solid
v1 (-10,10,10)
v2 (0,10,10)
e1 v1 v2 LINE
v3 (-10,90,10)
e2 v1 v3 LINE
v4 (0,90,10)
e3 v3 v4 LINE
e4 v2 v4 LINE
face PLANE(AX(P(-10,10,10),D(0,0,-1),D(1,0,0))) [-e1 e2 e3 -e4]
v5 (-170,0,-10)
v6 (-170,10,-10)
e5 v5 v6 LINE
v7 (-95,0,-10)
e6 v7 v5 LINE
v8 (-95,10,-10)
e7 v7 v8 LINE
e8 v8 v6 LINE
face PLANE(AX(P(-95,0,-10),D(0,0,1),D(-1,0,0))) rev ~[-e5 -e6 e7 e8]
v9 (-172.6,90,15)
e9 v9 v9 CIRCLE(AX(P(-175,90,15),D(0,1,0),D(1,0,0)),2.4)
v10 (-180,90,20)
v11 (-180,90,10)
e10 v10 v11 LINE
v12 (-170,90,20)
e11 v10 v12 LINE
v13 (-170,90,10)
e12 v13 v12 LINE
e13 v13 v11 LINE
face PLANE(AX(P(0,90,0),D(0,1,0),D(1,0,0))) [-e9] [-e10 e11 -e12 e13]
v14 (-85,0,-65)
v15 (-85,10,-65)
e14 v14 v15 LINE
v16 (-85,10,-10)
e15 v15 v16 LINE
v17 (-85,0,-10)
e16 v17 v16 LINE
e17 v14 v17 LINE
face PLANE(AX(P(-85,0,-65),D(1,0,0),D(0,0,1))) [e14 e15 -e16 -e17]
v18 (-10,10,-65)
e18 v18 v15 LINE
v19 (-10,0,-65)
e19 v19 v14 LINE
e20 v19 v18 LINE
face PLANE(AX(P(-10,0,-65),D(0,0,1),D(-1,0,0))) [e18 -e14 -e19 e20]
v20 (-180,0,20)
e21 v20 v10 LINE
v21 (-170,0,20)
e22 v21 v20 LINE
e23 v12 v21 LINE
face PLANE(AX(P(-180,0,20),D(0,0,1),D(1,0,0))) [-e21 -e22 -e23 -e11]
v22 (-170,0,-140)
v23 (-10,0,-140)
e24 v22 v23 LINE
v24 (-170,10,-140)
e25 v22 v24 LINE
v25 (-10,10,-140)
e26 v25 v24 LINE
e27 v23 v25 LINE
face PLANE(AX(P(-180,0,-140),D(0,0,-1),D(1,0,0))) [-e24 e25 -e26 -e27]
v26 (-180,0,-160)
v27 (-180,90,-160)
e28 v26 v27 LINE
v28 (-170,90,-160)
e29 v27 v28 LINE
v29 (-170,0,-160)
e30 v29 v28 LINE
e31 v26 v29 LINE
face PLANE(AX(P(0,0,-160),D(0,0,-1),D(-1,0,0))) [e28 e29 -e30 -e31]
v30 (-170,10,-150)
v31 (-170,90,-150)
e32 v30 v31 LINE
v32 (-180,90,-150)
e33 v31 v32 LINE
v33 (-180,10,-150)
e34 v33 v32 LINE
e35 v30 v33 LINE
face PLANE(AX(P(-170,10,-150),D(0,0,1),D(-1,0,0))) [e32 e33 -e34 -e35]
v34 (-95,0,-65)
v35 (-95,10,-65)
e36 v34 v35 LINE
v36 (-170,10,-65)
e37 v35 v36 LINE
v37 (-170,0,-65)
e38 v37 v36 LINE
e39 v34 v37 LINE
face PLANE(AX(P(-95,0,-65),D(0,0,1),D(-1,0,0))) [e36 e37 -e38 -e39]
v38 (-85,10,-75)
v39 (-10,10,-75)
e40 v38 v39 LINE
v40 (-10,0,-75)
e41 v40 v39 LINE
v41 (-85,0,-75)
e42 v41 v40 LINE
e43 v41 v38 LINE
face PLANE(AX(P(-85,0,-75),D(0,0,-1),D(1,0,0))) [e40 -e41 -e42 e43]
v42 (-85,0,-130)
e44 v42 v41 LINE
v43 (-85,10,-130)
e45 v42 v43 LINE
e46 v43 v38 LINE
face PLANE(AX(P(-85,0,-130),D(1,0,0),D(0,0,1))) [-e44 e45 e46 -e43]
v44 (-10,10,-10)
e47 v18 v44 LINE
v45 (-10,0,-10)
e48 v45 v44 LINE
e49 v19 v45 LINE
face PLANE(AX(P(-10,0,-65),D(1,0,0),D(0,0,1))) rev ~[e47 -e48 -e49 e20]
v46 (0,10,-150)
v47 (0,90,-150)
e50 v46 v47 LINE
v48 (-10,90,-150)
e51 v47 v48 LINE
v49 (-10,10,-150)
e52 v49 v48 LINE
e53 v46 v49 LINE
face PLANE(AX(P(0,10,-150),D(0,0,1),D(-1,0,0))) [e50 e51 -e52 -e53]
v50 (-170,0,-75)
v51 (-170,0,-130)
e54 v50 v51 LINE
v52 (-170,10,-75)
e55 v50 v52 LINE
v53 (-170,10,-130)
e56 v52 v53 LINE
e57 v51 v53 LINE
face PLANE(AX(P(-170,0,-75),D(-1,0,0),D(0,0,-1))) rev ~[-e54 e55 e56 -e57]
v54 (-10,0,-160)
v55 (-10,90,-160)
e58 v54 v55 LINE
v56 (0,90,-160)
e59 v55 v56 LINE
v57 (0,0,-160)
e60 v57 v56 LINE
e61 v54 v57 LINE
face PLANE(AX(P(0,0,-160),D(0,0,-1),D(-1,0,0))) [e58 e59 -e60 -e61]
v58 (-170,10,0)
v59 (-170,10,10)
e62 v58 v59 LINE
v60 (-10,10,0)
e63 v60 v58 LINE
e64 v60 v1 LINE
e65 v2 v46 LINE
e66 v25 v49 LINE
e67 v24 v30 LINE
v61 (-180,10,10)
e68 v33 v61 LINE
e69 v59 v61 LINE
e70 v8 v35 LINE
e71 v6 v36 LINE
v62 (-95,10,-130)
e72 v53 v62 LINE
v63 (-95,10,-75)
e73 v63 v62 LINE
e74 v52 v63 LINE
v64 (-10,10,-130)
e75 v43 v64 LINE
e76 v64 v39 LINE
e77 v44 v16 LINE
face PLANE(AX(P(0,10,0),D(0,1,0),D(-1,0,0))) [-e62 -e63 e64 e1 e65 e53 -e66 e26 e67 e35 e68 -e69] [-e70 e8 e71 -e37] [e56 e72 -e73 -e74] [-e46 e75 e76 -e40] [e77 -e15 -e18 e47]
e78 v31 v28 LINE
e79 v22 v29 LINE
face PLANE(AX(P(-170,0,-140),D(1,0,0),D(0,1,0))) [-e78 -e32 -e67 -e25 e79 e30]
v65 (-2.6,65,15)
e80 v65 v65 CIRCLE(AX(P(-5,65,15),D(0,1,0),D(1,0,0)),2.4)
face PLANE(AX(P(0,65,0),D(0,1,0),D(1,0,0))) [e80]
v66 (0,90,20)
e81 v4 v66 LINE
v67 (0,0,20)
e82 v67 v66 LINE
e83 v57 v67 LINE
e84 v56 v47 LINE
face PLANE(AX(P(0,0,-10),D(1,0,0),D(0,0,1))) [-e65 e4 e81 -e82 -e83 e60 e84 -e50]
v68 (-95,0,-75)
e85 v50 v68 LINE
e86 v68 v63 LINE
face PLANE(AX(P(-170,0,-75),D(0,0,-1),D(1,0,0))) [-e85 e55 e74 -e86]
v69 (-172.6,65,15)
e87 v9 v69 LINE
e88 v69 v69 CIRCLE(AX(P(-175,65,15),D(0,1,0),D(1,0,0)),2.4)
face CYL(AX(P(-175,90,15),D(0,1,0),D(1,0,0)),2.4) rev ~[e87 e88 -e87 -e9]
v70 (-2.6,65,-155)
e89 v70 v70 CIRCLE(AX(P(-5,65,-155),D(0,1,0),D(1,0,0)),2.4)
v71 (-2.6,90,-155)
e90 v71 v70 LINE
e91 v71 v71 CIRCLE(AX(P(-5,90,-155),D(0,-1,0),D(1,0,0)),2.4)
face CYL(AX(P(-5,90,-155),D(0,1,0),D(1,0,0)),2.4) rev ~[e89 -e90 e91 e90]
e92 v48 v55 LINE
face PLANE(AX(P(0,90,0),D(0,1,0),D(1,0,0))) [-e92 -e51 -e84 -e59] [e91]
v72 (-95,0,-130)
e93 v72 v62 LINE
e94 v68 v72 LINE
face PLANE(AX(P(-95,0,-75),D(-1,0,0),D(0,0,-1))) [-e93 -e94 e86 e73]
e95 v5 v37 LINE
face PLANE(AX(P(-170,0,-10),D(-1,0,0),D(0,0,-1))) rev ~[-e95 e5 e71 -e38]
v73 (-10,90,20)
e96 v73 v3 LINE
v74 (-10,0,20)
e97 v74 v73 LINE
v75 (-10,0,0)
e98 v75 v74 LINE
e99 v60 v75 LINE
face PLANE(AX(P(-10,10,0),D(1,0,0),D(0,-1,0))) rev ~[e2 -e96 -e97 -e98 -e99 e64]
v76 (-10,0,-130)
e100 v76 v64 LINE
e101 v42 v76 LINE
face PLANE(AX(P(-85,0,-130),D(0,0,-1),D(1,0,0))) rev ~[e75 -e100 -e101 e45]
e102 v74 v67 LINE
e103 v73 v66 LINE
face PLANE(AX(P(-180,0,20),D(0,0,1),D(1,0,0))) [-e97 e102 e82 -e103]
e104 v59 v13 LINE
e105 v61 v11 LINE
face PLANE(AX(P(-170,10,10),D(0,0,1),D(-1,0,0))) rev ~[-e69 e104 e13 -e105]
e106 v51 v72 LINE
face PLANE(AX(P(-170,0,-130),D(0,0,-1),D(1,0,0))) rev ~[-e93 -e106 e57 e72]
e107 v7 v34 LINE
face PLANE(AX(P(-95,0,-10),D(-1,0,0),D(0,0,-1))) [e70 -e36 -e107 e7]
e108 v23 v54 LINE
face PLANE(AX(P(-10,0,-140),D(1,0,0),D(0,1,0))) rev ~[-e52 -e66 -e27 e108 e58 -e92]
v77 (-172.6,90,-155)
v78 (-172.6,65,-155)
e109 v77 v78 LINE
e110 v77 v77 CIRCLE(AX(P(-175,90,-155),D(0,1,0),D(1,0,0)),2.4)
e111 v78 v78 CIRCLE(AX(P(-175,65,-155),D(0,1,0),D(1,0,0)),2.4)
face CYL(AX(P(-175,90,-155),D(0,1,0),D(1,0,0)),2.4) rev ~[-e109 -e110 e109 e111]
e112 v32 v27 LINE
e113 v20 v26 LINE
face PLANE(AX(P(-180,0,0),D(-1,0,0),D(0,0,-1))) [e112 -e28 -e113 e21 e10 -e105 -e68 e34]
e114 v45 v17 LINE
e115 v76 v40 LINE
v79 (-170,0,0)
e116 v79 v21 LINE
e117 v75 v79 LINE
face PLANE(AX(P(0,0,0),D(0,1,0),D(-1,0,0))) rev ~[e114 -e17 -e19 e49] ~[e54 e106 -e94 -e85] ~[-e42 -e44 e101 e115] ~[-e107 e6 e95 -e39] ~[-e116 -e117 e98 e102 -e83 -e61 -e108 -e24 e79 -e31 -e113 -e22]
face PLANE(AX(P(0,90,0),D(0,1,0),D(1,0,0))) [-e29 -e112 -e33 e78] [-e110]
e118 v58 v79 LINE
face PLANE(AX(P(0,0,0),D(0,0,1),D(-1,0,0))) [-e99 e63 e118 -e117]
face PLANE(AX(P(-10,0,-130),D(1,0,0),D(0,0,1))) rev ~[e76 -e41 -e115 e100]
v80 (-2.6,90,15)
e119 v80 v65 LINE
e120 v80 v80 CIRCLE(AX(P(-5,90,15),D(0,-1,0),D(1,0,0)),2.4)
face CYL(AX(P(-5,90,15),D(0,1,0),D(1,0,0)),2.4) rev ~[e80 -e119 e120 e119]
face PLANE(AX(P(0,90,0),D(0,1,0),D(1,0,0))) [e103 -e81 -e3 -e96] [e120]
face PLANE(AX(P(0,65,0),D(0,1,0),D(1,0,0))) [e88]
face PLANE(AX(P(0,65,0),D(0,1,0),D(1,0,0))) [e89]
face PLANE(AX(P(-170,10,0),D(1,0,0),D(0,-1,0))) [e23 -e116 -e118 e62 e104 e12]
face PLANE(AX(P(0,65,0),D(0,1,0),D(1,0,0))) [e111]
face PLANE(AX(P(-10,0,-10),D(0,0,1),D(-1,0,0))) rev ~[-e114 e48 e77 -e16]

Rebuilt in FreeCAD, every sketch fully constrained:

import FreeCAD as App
import Part
import Sketcher
from FreeCAD import Vector
Q = App.Units.Quantity

doc = App.newDocument("Part")
body = doc.addObject("PartDesign::Body", "Body")

# Sketch on XZ plane
sketch1 = body.newObject("Sketcher::SketchObject", "Sketch")
sketch1.AttachmentSupport = (doc.getObject("XZ_Plane"), [""])
sketch1.MapMode = "FlatFace"
sketch1.addGeometry([
    Part.LineSegment(Vector(-180, 0, 0), Vector(0, 0, 0)),  # 0
    Part.LineSegment(Vector(0, 0, 0), Vector(0, -140, 0)),  # 1
    Part.LineSegment(Vector(0, -140, 0), Vector(-180, -140, 0)),  # 2
    Part.LineSegment(Vector(-180, -140, 0), Vector(-180, 0, 0)),  # 3
    Part.LineSegment(Vector(-170, -75, 0), Vector(-170, -130, 0)),  # 4
    Part.LineSegment(Vector(-170, -130, 0), Vector(-95, -130, 0)),  # 5
    Part.LineSegment(Vector(-95, -130, 0), Vector(-95, -75, 0)),  # 6
    Part.LineSegment(Vector(-95, -75, 0), Vector(-170, -75, 0)),  # 7
    Part.LineSegment(Vector(-170, -10, 0), Vector(-170, -65, 0)),  # 8
    Part.LineSegment(Vector(-170, -65, 0), Vector(-95, -65, 0)),  # 9
    Part.LineSegment(Vector(-95, -65, 0), Vector(-95, -10, 0)),  # 10
    Part.LineSegment(Vector(-95, -10, 0), Vector(-170, -10, 0)),  # 11
    Part.LineSegment(Vector(-10, -10, 0), Vector(-85, -10, 0)),  # 12
    Part.LineSegment(Vector(-85, -10, 0), Vector(-85, -65, 0)),  # 13
    Part.LineSegment(Vector(-85, -65, 0), Vector(-10, -65, 0)),  # 14
    Part.LineSegment(Vector(-10, -65, 0), Vector(-10, -10, 0)),  # 15
    Part.LineSegment(Vector(-10, -130, 0), Vector(-10, -75, 0)),  # 16
    Part.LineSegment(Vector(-10, -75, 0), Vector(-85, -75, 0)),  # 17
    Part.LineSegment(Vector(-85, -75, 0), Vector(-85, -130, 0)),  # 18
    Part.LineSegment(Vector(-85, -130, 0), Vector(-10, -130, 0)),  # 19
], False)
sketch1.addConstraint([
    Sketcher.Constraint("Coincident", 0, 2, 1, 1),
    Sketcher.Constraint("Coincident", 1, 2, 2, 1),
    Sketcher.Constraint("Coincident", 2, 2, 3, 1),
    Sketcher.Constraint("Coincident", 3, 2, 0, 1),
    Sketcher.Constraint("Coincident", 4, 2, 5, 1),
    Sketcher.Constraint("Coincident", 5, 2, 6, 1),
    Sketcher.Constraint("Coincident", 6, 2, 7, 1),
    Sketcher.Constraint("Coincident", 7, 2, 4, 1),
    Sketcher.Constraint("Coincident", 8, 2, 9, 1),
    Sketcher.Constraint("Coincident", 9, 2, 10, 1),
    Sketcher.Constraint("Coincident", 10, 2, 11, 1),
    Sketcher.Constraint("Coincident", 11, 2, 8, 1),
    Sketcher.Constraint("Coincident", 12, 2, 13, 1),
    Sketcher.Constraint("Coincident", 13, 2, 14, 1),
    Sketcher.Constraint("Coincident", 14, 2, 15, 1),
    Sketcher.Constraint("Coincident", 15, 2, 12, 1),
    Sketcher.Constraint("Coincident", 16, 2, 17, 1),
    Sketcher.Constraint("Coincident", 17, 2, 18, 1),
    Sketcher.Constraint("Coincident", 18, 2, 19, 1),
    Sketcher.Constraint("Coincident", 19, 2, 16, 1),
    Sketcher.Constraint("Horizontal", 0),
    Sketcher.Constraint("Vertical", 1),
    Sketcher.Constraint("Horizontal", 2),
    Sketcher.Constraint("Vertical", 3),
    Sketcher.Constraint("Vertical", 4),
    Sketcher.Constraint("Horizontal", 5),
    Sketcher.Constraint("Vertical", 6),
    Sketcher.Constraint("Horizontal", 7),
    Sketcher.Constraint("Vertical", 8),
    Sketcher.Constraint("Horizontal", 9),
    Sketcher.Constraint("Vertical", 10),
    Sketcher.Constraint("Horizontal", 11),
    Sketcher.Constraint("Horizontal", 12),
    Sketcher.Constraint("Vertical", 13),
    Sketcher.Constraint("Horizontal", 14),
    Sketcher.Constraint("Vertical", 15),
    Sketcher.Constraint("Vertical", 16),
    Sketcher.Constraint("Horizontal", 17),
    Sketcher.Constraint("Vertical", 18),
    Sketcher.Constraint("Horizontal", 19),
    Sketcher.Constraint("Coincident", 0, 2, -1, 1),
    Sketcher.Constraint("Horizontal", 11, 2, 12, 2),
    Sketcher.Constraint("Horizontal", 9, 2, 13, 2),
    Sketcher.Constraint("Horizontal", 7, 2, 16, 2),
    Sketcher.Constraint("Horizontal", 5, 2, 18, 2),
    Sketcher.Constraint("Vertical", 7, 2, 8, 2),
    Sketcher.Constraint("Vertical", 6, 2, 9, 2),
    Sketcher.Constraint("Vertical", 15, 2, 16, 2),
    Sketcher.Constraint("Vertical", 13, 2, 17, 2),
    Sketcher.Constraint("Equal", 11, 12),
    Sketcher.Constraint("Equal", 6, 8),
    Sketcher.Constraint("DistanceX", 0, 1, 0, 2, Q("180 mm")),
    Sketcher.Constraint("DistanceY", 1, 2, 1, 1, Q("140 mm")),
    Sketcher.Constraint("DistanceY", 10, 2, -1, 1, Q("10 mm")),
    Sketcher.Constraint("DistanceX", 14, 2, -1, 1, Q("10 mm")),
    Sketcher.Constraint("DistanceX", 2, 2, 4, 2, Q("10 mm")),
    Sketcher.Constraint("DistanceY", 2, 2, 4, 2, Q("10 mm")),
    Sketcher.Constraint("DistanceY", 7, 2, 8, 2, Q("10 mm")),
    Sketcher.Constraint("DistanceX", 10, 2, 12, 2, Q("10 mm")),
])
pad1 = body.newObject("PartDesign::Pad", "Pad")
pad1.Profile = sketch1
pad1.Length = 10
pad1.Reversed = True

# Sketch on XY plane
sketch2 = body.newObject("Sketcher::SketchObject", "Sketch001")
sketch2.AttachmentSupport = (doc.getObject("XY_Plane"), [""])
sketch2.MapMode = "FlatFace"
sketch2.AttachmentOffset = App.Placement(Vector(0, 0, -140), App.Rotation())
sketch2.addGeometry([
    Part.LineSegment(Vector(0, 0, 0), Vector(-10, 0, 0)),  # 0
    Part.LineSegment(Vector(-10, 0, 0), Vector(-10, 10, 0)),  # 1
    Part.LineSegment(Vector(-10, 10, 0), Vector(0, 10, 0)),  # 2
    Part.LineSegment(Vector(0, 10, 0), Vector(0, 0, 0)),  # 3
    Part.LineSegment(Vector(-170, 0, 0), Vector(-180, 0, 0)),  # 4
    Part.LineSegment(Vector(-180, 0, 0), Vector(-180, 10, 0)),  # 5
    Part.LineSegment(Vector(-180, 10, 0), Vector(-170, 10, 0)),  # 6
    Part.LineSegment(Vector(-170, 10, 0), Vector(-170, 0, 0)),  # 7
], False)
sketch2.addConstraint([
    Sketcher.Constraint("Coincident", 0, 2, 1, 1),
    Sketcher.Constraint("Coincident", 1, 2, 2, 1),
    Sketcher.Constraint("Coincident", 2, 2, 3, 1),
    Sketcher.Constraint("Coincident", 3, 2, 0, 1),
    Sketcher.Constraint("Coincident", 4, 2, 5, 1),
    Sketcher.Constraint("Coincident", 5, 2, 6, 1),
    Sketcher.Constraint("Coincident", 6, 2, 7, 1),
    Sketcher.Constraint("Coincident", 7, 2, 4, 1),
    Sketcher.Constraint("Horizontal", 0),
    Sketcher.Constraint("Vertical", 1),
    Sketcher.Constraint("Horizontal", 2),
    Sketcher.Constraint("Vertical", 3),
    Sketcher.Constraint("Horizontal", 4),
    Sketcher.Constraint("Vertical", 5),
    Sketcher.Constraint("Horizontal", 6),
    Sketcher.Constraint("Vertical", 7),
    Sketcher.Constraint("Coincident", 3, 2, -1, 1),
    Sketcher.Constraint("PointOnObject", 4, 2, -1),
    Sketcher.Constraint("Horizontal", 2, 2, 5, 2),
    Sketcher.Constraint("Equal", 2, 4),
    Sketcher.Constraint("Equal", 6, 1),
    Sketcher.Constraint("DistanceX", 0, 2, 0, 1, Q("10 mm")),
    Sketcher.Constraint("DistanceX", 4, 2, -1, 1, Q("180 mm")),
])
pad2 = body.newObject("PartDesign::Pad", "Pad001")
pad2.Profile = sketch2
pad2.Length = 20
pad2.Reversed = True

# Sketch on XY plane
sketch3 = body.newObject("Sketcher::SketchObject", "Sketch002")
sketch3.AttachmentSupport = (doc.getObject("XY_Plane"), [""])
sketch3.MapMode = "FlatFace"
sketch3.addGeometry([
    Part.LineSegment(Vector(-170, 10, 0), Vector(-180, 10, 0)),  # 0
    Part.LineSegment(Vector(-180, 10, 0), Vector(-180, 0, 0)),  # 1
    Part.LineSegment(Vector(-180, 0, 0), Vector(-170, 0, 0)),  # 2
    Part.LineSegment(Vector(-170, 0, 0), Vector(-170, 10, 0)),  # 3
    Part.LineSegment(Vector(-10, 0, 0), Vector(0, 0, 0)),  # 4
    Part.LineSegment(Vector(0, 0, 0), Vector(0, 10, 0)),  # 5
    Part.LineSegment(Vector(0, 10, 0), Vector(-10, 10, 0)),  # 6
    Part.LineSegment(Vector(-10, 10, 0), Vector(-10, 0, 0)),  # 7
], False)
sketch3.addConstraint([
    Sketcher.Constraint("Coincident", 0, 2, 1, 1),
    Sketcher.Constraint("Coincident", 1, 2, 2, 1),
    Sketcher.Constraint("Coincident", 2, 2, 3, 1),
    Sketcher.Constraint("Coincident", 3, 2, 0, 1),
    Sketcher.Constraint("Coincident", 4, 2, 5, 1),
    Sketcher.Constraint("Coincident", 5, 2, 6, 1),
    Sketcher.Constraint("Coincident", 6, 2, 7, 1),
    Sketcher.Constraint("Coincident", 7, 2, 4, 1),
    Sketcher.Constraint("Horizontal", 0),
    Sketcher.Constraint("Vertical", 1),
    Sketcher.Constraint("Horizontal", 2),
    Sketcher.Constraint("Vertical", 3),
    Sketcher.Constraint("Horizontal", 4),
    Sketcher.Constraint("Vertical", 5),
    Sketcher.Constraint("Horizontal", 6),
    Sketcher.Constraint("Vertical", 7),
    Sketcher.Constraint("Coincident", 4, 2, -1, 1),
    Sketcher.Constraint("PointOnObject", 1, 2, -1),
    Sketcher.Constraint("Horizontal", 3, 2, 5, 2),
    Sketcher.Constraint("Equal", 2, 4),
    Sketcher.Constraint("Equal", 6, 1),
    Sketcher.Constraint("DistanceX", 0, 2, 0, 1, Q("10 mm")),
    Sketcher.Constraint("DistanceX", 0, 2, -1, 1, Q("180 mm")),
])
pad3 = body.newObject("PartDesign::Pad", "Pad002")
pad3.Profile = sketch3
pad3.Length = 20

# Sketch on XZ plane
sketch4 = body.newObject("Sketcher::SketchObject", "Sketch003")
sketch4.AttachmentSupport = (doc.getObject("XZ_Plane"), [""])
sketch4.MapMode = "FlatFace"
sketch4.AttachmentOffset = App.Placement(Vector(0, 0, -10), App.Rotation())
sketch4.addGeometry([
    Part.LineSegment(Vector(-180, -160, 0), Vector(-180, -150, 0)),  # 0
    Part.LineSegment(Vector(-180, -150, 0), Vector(-170, -150, 0)),  # 1
    Part.LineSegment(Vector(-170, -150, 0), Vector(-170, -160, 0)),  # 2
    Part.LineSegment(Vector(-170, -160, 0), Vector(-180, -160, 0)),  # 3
    Part.LineSegment(Vector(-180, 10, 0), Vector(-180, 20, 0)),  # 4
    Part.LineSegment(Vector(-180, 20, 0), Vector(-170, 20, 0)),  # 5
    Part.LineSegment(Vector(-170, 20, 0), Vector(-170, 10, 0)),  # 6
    Part.LineSegment(Vector(-170, 10, 0), Vector(-180, 10, 0)),  # 7
    Part.LineSegment(Vector(0, 20, 0), Vector(0, 10, 0)),  # 8
    Part.LineSegment(Vector(0, 10, 0), Vector(-10, 10, 0)),  # 9
    Part.LineSegment(Vector(-10, 10, 0), Vector(-10, 20, 0)),  # 10
    Part.LineSegment(Vector(-10, 20, 0), Vector(0, 20, 0)),  # 11
    Part.LineSegment(Vector(0, -160, 0), Vector(-10, -160, 0)),  # 12
    Part.LineSegment(Vector(-10, -160, 0), Vector(-10, -150, 0)),  # 13
    Part.LineSegment(Vector(-10, -150, 0), Vector(0, -150, 0)),  # 14
    Part.LineSegment(Vector(0, -150, 0), Vector(0, -160, 0)),  # 15
], False)
sketch4.addConstraint([
    Sketcher.Constraint("Coincident", 0, 2, 1, 1),
    Sketcher.Constraint("Coincident", 1, 2, 2, 1),
    Sketcher.Constraint("Coincident", 2, 2, 3, 1),
    Sketcher.Constraint("Coincident", 3, 2, 0, 1),
    Sketcher.Constraint("Coincident", 4, 2, 5, 1),
    Sketcher.Constraint("Coincident", 5, 2, 6, 1),
    Sketcher.Constraint("Coincident", 6, 2, 7, 1),
    Sketcher.Constraint("Coincident", 7, 2, 4, 1),
    Sketcher.Constraint("Coincident", 8, 2, 9, 1),
    Sketcher.Constraint("Coincident", 9, 2, 10, 1),
    Sketcher.Constraint("Coincident", 10, 2, 11, 1),
    Sketcher.Constraint("Coincident", 11, 2, 8, 1),
    Sketcher.Constraint("Coincident", 12, 2, 13, 1),
    Sketcher.Constraint("Coincident", 13, 2, 14, 1),
    Sketcher.Constraint("Coincident", 14, 2, 15, 1),
    Sketcher.Constraint("Coincident", 15, 2, 12, 1),
    Sketcher.Constraint("Vertical", 0),
    Sketcher.Constraint("Horizontal", 1),
    Sketcher.Constraint("Vertical", 2),
    Sketcher.Constraint("Horizontal", 3),
    Sketcher.Constraint("Vertical", 4),
    Sketcher.Constraint("Horizontal", 5),
    Sketcher.Constraint("Vertical", 6),
    Sketcher.Constraint("Horizontal", 7),
    Sketcher.Constraint("Vertical", 8),
    Sketcher.Constraint("Horizontal", 9),
    Sketcher.Constraint("Vertical", 10),
    Sketcher.Constraint("Horizontal", 11),
    Sketcher.Constraint("Horizontal", 12),
    Sketcher.Constraint("Vertical", 13),
    Sketcher.Constraint("Horizontal", 14),
    Sketcher.Constraint("Vertical", 15),
    Sketcher.Constraint("PointOnObject", 8, 2, -2),
    Sketcher.Constraint("PointOnObject", 14, 2, -2),
    Sketcher.Constraint("Horizontal", 7, 2, 8, 2),
    Sketcher.Constraint("Horizontal", 5, 2, 10, 2),
    Sketcher.Constraint("Horizontal", 3, 2, 12, 2),
    Sketcher.Constraint("Horizontal", 1, 2, 13, 2),
    Sketcher.Constraint("Vertical", 3, 2, 4, 2),
    Sketcher.Constraint("Vertical", 2, 2, 5, 2),
    Sketcher.Constraint("Vertical", 10, 2, 12, 2),
    Sketcher.Constraint("Equal", 7, 9),
    Sketcher.Constraint("Equal", 14, 0),
    Sketcher.Constraint("Equal", 2, 4),
    Sketcher.Constraint("DistanceX", 1, 1, 1, 2, Q("10 mm")),
    Sketcher.Constraint("DistanceY", -1, 1, 6, 2, Q("10 mm")),
    Sketcher.Constraint("DistanceX", 0, 2, -1, 1, Q("180 mm")),
    Sketcher.Constraint("DistanceY", 0, 2, -1, 1, Q("150 mm")),
])
pad4 = body.newObject("PartDesign::Pad", "Pad003")
pad4.Profile = sketch4
pad4.Length = 80
pad4.Reversed = True

# Sketch on XZ plane
sketch5 = body.newObject("Sketcher::SketchObject", "Sketch004")
sketch5.AttachmentSupport = (doc.getObject("XZ_Plane"), [""])
sketch5.MapMode = "FlatFace"
sketch5.AttachmentOffset = App.Placement(Vector(0, 0, -90), App.Rotation())
sketch5.addGeometry([
    Part.Circle(Vector(-5, -155, 0), Vector(0, 0, 1), 2.4),
    Part.Circle(Vector(-5, 15, 0), Vector(0, 0, 1), 2.4),
    Part.Circle(Vector(-175, -155, 0), Vector(0, 0, 1), 2.4),
    Part.Circle(Vector(-175, 15, 0), Vector(0, 0, 1), 2.4),
], False)
sketch5.addConstraint([
    Sketcher.Constraint("Equal", 0, 1),
    Sketcher.Constraint("Equal", 1, 2),
    Sketcher.Constraint("Equal", 2, 3),
    Sketcher.Constraint("Horizontal", 0, 3, 2, 3),
    Sketcher.Constraint("Horizontal", 1, 3, 3, 3),
    Sketcher.Constraint("Vertical", 0, 3, 1, 3),
    Sketcher.Constraint("Vertical", 2, 3, 3, 3),
    Sketcher.Constraint("Diameter", 0, Q("4.8 mm")),
    Sketcher.Constraint("DistanceX", 0, 3, -1, 1, Q("5 mm")),
    Sketcher.Constraint("DistanceY", 0, 3, -1, 1, Q("155 mm")),
    Sketcher.Constraint("DistanceY", -1, 1, 1, 3, Q("15 mm")),
    Sketcher.Constraint("DistanceX", 2, 3, -1, 1, Q("175 mm")),
])
pocket1 = body.newObject("PartDesign::Pocket", "Pocket")
pocket1.Profile = sketch5
pocket1.Length = 25
pocket1.Reversed = True

doc.recompute()
